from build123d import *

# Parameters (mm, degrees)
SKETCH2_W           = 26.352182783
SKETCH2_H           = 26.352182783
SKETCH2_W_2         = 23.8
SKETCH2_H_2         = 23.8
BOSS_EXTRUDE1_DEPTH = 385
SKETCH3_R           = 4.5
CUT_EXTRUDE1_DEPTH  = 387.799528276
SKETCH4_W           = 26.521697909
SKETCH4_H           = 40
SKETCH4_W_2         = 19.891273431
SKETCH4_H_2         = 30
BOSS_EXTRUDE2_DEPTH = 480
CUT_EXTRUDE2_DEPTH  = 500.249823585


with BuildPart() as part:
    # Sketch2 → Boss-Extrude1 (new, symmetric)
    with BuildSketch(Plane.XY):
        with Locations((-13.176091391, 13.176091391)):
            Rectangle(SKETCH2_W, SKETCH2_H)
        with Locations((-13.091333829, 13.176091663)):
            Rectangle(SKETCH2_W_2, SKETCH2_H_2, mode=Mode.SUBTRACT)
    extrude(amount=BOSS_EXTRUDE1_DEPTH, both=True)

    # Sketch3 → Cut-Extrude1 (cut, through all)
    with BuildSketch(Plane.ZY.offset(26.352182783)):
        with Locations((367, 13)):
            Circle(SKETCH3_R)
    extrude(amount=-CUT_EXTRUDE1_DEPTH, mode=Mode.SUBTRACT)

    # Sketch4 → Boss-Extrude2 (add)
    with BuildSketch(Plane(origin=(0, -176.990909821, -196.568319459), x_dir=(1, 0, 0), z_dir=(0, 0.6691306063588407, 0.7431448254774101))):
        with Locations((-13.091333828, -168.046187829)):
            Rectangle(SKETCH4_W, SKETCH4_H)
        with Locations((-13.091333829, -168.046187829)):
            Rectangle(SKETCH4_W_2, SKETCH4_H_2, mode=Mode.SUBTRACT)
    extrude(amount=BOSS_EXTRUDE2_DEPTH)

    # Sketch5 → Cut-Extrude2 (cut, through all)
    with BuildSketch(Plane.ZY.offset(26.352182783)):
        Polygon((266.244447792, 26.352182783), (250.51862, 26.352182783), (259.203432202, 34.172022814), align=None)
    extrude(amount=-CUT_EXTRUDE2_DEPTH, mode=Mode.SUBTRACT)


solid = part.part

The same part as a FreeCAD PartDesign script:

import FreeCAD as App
import Part
import Sketcher
from FreeCAD import Vector
Q = App.Units.Quantity

doc = App.newDocument("Part")
params = doc.addObject("Spreadsheet::Sheet", "Params")
for row, (alias, value) in enumerate([
    ("sketch1_width", "23.8 mm"),
    ("pad1_length", "770 mm"),
    ("sketch2_diameter", "9 mm"),
    ("sketch3_height", "40 mm"),
    ("sketch3_height2", "30 mm"),
    ("pad2_length", "480 mm"),
], start=1):
    params.set(f"A{row}", alias)
    params.set(f"B{row}", "=" + value)
    params.setAlias(f"B{row}", alias)

body = doc.addObject("PartDesign::Body", "Body")

# Sketch on XY plane
sketch1 = body.newObject("Sketcher::SketchObject", "Sketch")
sketch1.AttachmentSupport = (doc.getObject("XY_Plane"), [""])
sketch1.MapMode = "FlatFace"
sketch1.addGeometry(Part.LineSegment(Vector(-26, 26, 0), Vector(-26, 0, 0)), False)
sketch1.addGeometry(Part.LineSegment(Vector(-26, 0, 0), Vector(0, 0, 0)), False)
sketch1.addGeometry(Part.LineSegment(Vector(0, 0, 0), Vector(0, 26, 0)), False)
sketch1.addGeometry(Part.LineSegment(Vector(0, 26, 0), Vector(-26, 26, 0)), False)
sketch1.addGeometry(Part.LineSegment(Vector(-1, 1, 0), Vector(-25, 1, 0)), False)
sketch1.addGeometry(Part.LineSegment(Vector(-25, 1, 0), Vector(-25, 25, 0)), False)
sketch1.addGeometry(Part.LineSegment(Vector(-25, 25, 0), Vector(-1, 25, 0)), False)
sketch1.addGeometry(Part.LineSegment(Vector(-1, 25, 0), Vector(-1, 1, 0)), False)
sketch1.addConstraint(Sketcher.Constraint("Coincident", 0, 2, 1, 1))
sketch1.addConstraint(Sketcher.Constraint("Coincident", 1, 2, 2, 1))
sketch1.addConstraint(Sketcher.Constraint("Coincident", 2, 2, 3, 1))
sketch1.addConstraint(Sketcher.Constraint("Coincident", 3, 2, 0, 1))
sketch1.addConstraint(Sketcher.Constraint("Coincident", 4, 2, 5, 1))
sketch1.addConstraint(Sketcher.Constraint("Coincident", 5, 2, 6, 1))
sketch1.addConstraint(Sketcher.Constraint("Coincident", 6, 2, 7, 1))
sketch1.addConstraint(Sketcher.Constraint("Coincident", 7, 2, 4, 1))
sketch1.addConstraint(Sketcher.Constraint("Vertical", 0))
sketch1.addConstraint(Sketcher.Constraint("Horizontal", 1))
sketch1.addConstraint(Sketcher.Constraint("Vertical", 2))
sketch1.addConstraint(Sketcher.Constraint("Horizontal", 3))
sketch1.addConstraint(Sketcher.Constraint("Horizontal", 4))
sketch1.addConstraint(Sketcher.Constraint("Vertical", 5))
sketch1.addConstraint(Sketcher.Constraint("Horizontal", 6))
sketch1.addConstraint(Sketcher.Constraint("Vertical", 7))
sketch1.addConstraint(Sketcher.Constraint("Coincident", 1, 2, -1, 1))
sketch1.addConstraint(Sketcher.Constraint("Equal", 3, 0))
sketch1.addConstraint(Sketcher.Constraint("Equal", 6, 5))
sketch1.addConstraint(Sketcher.Constraint("DistanceX", 4, 2, 4, 1, Q("23.8 mm")))
sketch1.addConstraint(Sketcher.Constraint("DistanceX", 1, 1, 1, 2, Q("26.352183 mm")))
sketch1.addConstraint(Sketcher.Constraint("DistanceY", -1, 1, 4, 2, Q("1.276092 mm")))
sketch1.addConstraint(Sketcher.Constraint("DistanceX", 0, 2, 4, 2, Q("1.360849 mm")))
sketch1.setExpression("Constraints[19]", "Params.sketch1_width")
pad1 = body.newObject("PartDesign::Pad", "Pad")
pad1.Profile = sketch1
pad1.setExpression("Length", "Params.pad1_length")
pad1.Midplane = True

# Sketch on YZ plane
sketch2 = body.newObject("Sketcher::SketchObject", "Sketch001")
sketch2.AttachmentSupport = (doc.getObject("YZ_Plane"), [""])
sketch2.MapMode = "FlatFace"
sketch2.AttachmentOffset = App.Placement(Vector(0, 0, -26.352183), App.Rotation())
sketch2.addGeometry(Part.Circle(Vector(13, 367, 0), Vector(0, 0, 1), 4.5), False)
sketch2.addConstraint(Sketcher.Constraint("Diameter", 0, Q("9 mm")))
sketch2.addConstraint(Sketcher.Constraint("DistanceX", -1, 1, 0, 3, Q("13 mm")))
sketch2.addConstraint(Sketcher.Constraint("DistanceY", -1, 1, 0, 3, Q("367 mm")))
sketch2.setExpression("Constraints[0]", "Params.sketch2_diameter")
pocket1 = body.newObject("PartDesign::Pocket", "Pocket")
pocket1.Profile = sketch2
pocket1.Type = "ThroughAll"
pocket1.Reversed = True

# Sketch on an angled plane
sketch3 = body.newObject("Sketcher::SketchObject", "Sketch002")
sketch3.Placement = App.Placement(Vector(0, -176.99091, -196.568319), App.Rotation(Vector(1, 0, 0), Vector(0, 0.743144825, -0.669130606), Vector(0, 0.669130606, 0.743144825), "ZXY"))
sketch3.addGeometry(Part.LineSegment(Vector(-26, -148, 0), Vector(-26, -188, 0)), False)
sketch3.addGeometry(Part.LineSegment(Vector(-26, -188, 0), Vector(0, -188, 0)), False)
sketch3.addGeometry(Part.LineSegment(Vector(0, -188, 0), Vector(0, -148, 0)), False)
sketch3.addGeometry(Part.LineSegment(Vector(0, -148, 0), Vector(-26, -148, 0)), False)
sketch3.addGeometry(Part.LineSegment(Vector(-3, -183, 0), Vector(-23, -183, 0)), False)
sketch3.addGeometry(Part.LineSegment(Vector(-23, -183, 0), Vector(-23, -153, 0)), False)
sketch3.addGeometry(Part.LineSegment(Vector(-23, -153, 0), Vector(-3, -153, 0)), False)
sketch3.addGeometry(Part.LineSegment(Vector(-3, -153, 0), Vector(-3, -183, 0)), False)
sketch3.addConstraint(Sketcher.Constraint("Coincident", 0, 2, 1, 1))
sketch3.addConstraint(Sketcher.Constraint("Coincident", 1, 2, 2, 1))
sketch3.addConstraint(Sketcher.Constraint("Coincident", 2, 2, 3, 1))
sketch3.addConstraint(Sketcher.Constraint("Coincident", 3, 2, 0, 1))
sketch3.addConstraint(Sketcher.Constraint("Coincident", 4, 2, 5, 1))
sketch3.addConstraint(Sketcher.Constraint("Coincident", 5, 2, 6, 1))
sketch3.addConstraint(Sketcher.Constraint("Coincident", 6, 2, 7, 1))
sketch3.addConstraint(Sketcher.Constraint("Coincident", 7, 2, 4, 1))
sketch3.addConstraint(Sketcher.Constraint("Vertical", 0))
sketch3.addConstraint(Sketcher.Constraint("Horizontal", 1))
sketch3.addConstraint(Sketcher.Constraint("Vertical", 2))
sketch3.addConstraint(Sketcher.Constraint("Horizontal", 3))
sketch3.addConstraint(Sketcher.Constraint("Horizontal", 4))
sketch3.addConstraint(Sketcher.Constraint("Vertical", 5))
sketch3.addConstraint(Sketcher.Constraint("Horizontal", 6))
sketch3.addConstraint(Sketcher.Constraint("Vertical", 7))
sketch3.addConstraint(Sketcher.Constraint("DistanceY", 0, 2, 0, 1, Q("40 mm")))
sketch3.addConstraint(Sketcher.Constraint("DistanceY", 5, 1, 5, 2, Q("30 mm")))
sketch3.addConstraint(Sketcher.Constraint("DistanceY", 0, 2, 4, 2, Q("5 mm")))
sketch3.addConstraint(Sketcher.Constraint("DistanceX", 1, 1, 1, 2, Q("26.521698 mm")))
sketch3.addConstraint(Sketcher.Constraint("DistanceX", 4, 2, 4, 1, Q("19.891273 mm")))
sketch3.addConstraint(Sketcher.Constraint("DistanceX", 4, 2, -1, 1, Q("23.036971 mm")))
sketch3.addConstraint(Sketcher.Constraint("DistanceX", 0, 2, -1, 1, Q("26.352183 mm")))
sketch3.addConstraint(Sketcher.Constraint("DistanceY", 0, 2, -1, 1, Q("188.046188 mm")))
sketch3.setExpression("Constraints[16]", "Params.sketch3_height")
sketch3.setExpression("Constraints[17]", "Params.sketch3_height2")
pad2 = body.newObject("PartDesign::Pad", "Pad001")
pad2.Profile = sketch3
pad2.setExpression("Length", "Params.pad2_length")

# Sketch on YZ plane
sketch4 = body.newObject("Sketcher::SketchObject", "Sketch003")
sketch4.AttachmentSupport = (doc.getObject("YZ_Plane"), [""])
sketch4.MapMode = "FlatFace"
sketch4.AttachmentOffset = App.Placement(Vector(0, 0, -26.352183), App.Rotation())
sketch4.addGeometry(Part.LineSegment(Vector(26, 251, 0), Vector(26, 266, 0)), False)
sketch4.addGeometry(Part.LineSegment(Vector(26, 266, 0), Vector(34, 259, 0)), False)
sketch4.addGeometry(Part.LineSegment(Vector(34, 259, 0), Vector(26, 251, 0)), False)
sketch4.addConstraint(Sketcher.Constraint("Coincident", 0, 2, 1, 1))
sketch4.addConstraint(Sketcher.Constraint("Coincident", 1, 2, 2, 1))
sketch4.addConstraint(Sketcher.Constraint("Coincident", 2, 2, 0, 1))
sketch4.addConstraint(Sketcher.Constraint("Vertical", 0))
sketch4.addConstraint(Sketcher.Constraint("Perpendicular", 1, 2))
sketch4.addConstraint(Sketcher.Constraint("Angle", 1, Q("-42 deg")))
sketch4.addConstraint(Sketcher.Constraint("DistanceY", 0, 1, 0, 2, Q("15.725828 mm")))
sketch4.addConstraint(Sketcher.Constraint("DistanceY", -1, 1, 2, 2, Q("250.51862 mm")))
sketch4.addConstraint(Sketcher.Constraint("DistanceX", -1, 1, 0, 2, Q("26.352183 mm")))
pocket2 = body.newObject("PartDesign::Pocket", "Pocket001")
pocket2.Profile = sketch4
pocket2.Type = "ThroughAll"
pocket2.Reversed = True

doc.recompute()
